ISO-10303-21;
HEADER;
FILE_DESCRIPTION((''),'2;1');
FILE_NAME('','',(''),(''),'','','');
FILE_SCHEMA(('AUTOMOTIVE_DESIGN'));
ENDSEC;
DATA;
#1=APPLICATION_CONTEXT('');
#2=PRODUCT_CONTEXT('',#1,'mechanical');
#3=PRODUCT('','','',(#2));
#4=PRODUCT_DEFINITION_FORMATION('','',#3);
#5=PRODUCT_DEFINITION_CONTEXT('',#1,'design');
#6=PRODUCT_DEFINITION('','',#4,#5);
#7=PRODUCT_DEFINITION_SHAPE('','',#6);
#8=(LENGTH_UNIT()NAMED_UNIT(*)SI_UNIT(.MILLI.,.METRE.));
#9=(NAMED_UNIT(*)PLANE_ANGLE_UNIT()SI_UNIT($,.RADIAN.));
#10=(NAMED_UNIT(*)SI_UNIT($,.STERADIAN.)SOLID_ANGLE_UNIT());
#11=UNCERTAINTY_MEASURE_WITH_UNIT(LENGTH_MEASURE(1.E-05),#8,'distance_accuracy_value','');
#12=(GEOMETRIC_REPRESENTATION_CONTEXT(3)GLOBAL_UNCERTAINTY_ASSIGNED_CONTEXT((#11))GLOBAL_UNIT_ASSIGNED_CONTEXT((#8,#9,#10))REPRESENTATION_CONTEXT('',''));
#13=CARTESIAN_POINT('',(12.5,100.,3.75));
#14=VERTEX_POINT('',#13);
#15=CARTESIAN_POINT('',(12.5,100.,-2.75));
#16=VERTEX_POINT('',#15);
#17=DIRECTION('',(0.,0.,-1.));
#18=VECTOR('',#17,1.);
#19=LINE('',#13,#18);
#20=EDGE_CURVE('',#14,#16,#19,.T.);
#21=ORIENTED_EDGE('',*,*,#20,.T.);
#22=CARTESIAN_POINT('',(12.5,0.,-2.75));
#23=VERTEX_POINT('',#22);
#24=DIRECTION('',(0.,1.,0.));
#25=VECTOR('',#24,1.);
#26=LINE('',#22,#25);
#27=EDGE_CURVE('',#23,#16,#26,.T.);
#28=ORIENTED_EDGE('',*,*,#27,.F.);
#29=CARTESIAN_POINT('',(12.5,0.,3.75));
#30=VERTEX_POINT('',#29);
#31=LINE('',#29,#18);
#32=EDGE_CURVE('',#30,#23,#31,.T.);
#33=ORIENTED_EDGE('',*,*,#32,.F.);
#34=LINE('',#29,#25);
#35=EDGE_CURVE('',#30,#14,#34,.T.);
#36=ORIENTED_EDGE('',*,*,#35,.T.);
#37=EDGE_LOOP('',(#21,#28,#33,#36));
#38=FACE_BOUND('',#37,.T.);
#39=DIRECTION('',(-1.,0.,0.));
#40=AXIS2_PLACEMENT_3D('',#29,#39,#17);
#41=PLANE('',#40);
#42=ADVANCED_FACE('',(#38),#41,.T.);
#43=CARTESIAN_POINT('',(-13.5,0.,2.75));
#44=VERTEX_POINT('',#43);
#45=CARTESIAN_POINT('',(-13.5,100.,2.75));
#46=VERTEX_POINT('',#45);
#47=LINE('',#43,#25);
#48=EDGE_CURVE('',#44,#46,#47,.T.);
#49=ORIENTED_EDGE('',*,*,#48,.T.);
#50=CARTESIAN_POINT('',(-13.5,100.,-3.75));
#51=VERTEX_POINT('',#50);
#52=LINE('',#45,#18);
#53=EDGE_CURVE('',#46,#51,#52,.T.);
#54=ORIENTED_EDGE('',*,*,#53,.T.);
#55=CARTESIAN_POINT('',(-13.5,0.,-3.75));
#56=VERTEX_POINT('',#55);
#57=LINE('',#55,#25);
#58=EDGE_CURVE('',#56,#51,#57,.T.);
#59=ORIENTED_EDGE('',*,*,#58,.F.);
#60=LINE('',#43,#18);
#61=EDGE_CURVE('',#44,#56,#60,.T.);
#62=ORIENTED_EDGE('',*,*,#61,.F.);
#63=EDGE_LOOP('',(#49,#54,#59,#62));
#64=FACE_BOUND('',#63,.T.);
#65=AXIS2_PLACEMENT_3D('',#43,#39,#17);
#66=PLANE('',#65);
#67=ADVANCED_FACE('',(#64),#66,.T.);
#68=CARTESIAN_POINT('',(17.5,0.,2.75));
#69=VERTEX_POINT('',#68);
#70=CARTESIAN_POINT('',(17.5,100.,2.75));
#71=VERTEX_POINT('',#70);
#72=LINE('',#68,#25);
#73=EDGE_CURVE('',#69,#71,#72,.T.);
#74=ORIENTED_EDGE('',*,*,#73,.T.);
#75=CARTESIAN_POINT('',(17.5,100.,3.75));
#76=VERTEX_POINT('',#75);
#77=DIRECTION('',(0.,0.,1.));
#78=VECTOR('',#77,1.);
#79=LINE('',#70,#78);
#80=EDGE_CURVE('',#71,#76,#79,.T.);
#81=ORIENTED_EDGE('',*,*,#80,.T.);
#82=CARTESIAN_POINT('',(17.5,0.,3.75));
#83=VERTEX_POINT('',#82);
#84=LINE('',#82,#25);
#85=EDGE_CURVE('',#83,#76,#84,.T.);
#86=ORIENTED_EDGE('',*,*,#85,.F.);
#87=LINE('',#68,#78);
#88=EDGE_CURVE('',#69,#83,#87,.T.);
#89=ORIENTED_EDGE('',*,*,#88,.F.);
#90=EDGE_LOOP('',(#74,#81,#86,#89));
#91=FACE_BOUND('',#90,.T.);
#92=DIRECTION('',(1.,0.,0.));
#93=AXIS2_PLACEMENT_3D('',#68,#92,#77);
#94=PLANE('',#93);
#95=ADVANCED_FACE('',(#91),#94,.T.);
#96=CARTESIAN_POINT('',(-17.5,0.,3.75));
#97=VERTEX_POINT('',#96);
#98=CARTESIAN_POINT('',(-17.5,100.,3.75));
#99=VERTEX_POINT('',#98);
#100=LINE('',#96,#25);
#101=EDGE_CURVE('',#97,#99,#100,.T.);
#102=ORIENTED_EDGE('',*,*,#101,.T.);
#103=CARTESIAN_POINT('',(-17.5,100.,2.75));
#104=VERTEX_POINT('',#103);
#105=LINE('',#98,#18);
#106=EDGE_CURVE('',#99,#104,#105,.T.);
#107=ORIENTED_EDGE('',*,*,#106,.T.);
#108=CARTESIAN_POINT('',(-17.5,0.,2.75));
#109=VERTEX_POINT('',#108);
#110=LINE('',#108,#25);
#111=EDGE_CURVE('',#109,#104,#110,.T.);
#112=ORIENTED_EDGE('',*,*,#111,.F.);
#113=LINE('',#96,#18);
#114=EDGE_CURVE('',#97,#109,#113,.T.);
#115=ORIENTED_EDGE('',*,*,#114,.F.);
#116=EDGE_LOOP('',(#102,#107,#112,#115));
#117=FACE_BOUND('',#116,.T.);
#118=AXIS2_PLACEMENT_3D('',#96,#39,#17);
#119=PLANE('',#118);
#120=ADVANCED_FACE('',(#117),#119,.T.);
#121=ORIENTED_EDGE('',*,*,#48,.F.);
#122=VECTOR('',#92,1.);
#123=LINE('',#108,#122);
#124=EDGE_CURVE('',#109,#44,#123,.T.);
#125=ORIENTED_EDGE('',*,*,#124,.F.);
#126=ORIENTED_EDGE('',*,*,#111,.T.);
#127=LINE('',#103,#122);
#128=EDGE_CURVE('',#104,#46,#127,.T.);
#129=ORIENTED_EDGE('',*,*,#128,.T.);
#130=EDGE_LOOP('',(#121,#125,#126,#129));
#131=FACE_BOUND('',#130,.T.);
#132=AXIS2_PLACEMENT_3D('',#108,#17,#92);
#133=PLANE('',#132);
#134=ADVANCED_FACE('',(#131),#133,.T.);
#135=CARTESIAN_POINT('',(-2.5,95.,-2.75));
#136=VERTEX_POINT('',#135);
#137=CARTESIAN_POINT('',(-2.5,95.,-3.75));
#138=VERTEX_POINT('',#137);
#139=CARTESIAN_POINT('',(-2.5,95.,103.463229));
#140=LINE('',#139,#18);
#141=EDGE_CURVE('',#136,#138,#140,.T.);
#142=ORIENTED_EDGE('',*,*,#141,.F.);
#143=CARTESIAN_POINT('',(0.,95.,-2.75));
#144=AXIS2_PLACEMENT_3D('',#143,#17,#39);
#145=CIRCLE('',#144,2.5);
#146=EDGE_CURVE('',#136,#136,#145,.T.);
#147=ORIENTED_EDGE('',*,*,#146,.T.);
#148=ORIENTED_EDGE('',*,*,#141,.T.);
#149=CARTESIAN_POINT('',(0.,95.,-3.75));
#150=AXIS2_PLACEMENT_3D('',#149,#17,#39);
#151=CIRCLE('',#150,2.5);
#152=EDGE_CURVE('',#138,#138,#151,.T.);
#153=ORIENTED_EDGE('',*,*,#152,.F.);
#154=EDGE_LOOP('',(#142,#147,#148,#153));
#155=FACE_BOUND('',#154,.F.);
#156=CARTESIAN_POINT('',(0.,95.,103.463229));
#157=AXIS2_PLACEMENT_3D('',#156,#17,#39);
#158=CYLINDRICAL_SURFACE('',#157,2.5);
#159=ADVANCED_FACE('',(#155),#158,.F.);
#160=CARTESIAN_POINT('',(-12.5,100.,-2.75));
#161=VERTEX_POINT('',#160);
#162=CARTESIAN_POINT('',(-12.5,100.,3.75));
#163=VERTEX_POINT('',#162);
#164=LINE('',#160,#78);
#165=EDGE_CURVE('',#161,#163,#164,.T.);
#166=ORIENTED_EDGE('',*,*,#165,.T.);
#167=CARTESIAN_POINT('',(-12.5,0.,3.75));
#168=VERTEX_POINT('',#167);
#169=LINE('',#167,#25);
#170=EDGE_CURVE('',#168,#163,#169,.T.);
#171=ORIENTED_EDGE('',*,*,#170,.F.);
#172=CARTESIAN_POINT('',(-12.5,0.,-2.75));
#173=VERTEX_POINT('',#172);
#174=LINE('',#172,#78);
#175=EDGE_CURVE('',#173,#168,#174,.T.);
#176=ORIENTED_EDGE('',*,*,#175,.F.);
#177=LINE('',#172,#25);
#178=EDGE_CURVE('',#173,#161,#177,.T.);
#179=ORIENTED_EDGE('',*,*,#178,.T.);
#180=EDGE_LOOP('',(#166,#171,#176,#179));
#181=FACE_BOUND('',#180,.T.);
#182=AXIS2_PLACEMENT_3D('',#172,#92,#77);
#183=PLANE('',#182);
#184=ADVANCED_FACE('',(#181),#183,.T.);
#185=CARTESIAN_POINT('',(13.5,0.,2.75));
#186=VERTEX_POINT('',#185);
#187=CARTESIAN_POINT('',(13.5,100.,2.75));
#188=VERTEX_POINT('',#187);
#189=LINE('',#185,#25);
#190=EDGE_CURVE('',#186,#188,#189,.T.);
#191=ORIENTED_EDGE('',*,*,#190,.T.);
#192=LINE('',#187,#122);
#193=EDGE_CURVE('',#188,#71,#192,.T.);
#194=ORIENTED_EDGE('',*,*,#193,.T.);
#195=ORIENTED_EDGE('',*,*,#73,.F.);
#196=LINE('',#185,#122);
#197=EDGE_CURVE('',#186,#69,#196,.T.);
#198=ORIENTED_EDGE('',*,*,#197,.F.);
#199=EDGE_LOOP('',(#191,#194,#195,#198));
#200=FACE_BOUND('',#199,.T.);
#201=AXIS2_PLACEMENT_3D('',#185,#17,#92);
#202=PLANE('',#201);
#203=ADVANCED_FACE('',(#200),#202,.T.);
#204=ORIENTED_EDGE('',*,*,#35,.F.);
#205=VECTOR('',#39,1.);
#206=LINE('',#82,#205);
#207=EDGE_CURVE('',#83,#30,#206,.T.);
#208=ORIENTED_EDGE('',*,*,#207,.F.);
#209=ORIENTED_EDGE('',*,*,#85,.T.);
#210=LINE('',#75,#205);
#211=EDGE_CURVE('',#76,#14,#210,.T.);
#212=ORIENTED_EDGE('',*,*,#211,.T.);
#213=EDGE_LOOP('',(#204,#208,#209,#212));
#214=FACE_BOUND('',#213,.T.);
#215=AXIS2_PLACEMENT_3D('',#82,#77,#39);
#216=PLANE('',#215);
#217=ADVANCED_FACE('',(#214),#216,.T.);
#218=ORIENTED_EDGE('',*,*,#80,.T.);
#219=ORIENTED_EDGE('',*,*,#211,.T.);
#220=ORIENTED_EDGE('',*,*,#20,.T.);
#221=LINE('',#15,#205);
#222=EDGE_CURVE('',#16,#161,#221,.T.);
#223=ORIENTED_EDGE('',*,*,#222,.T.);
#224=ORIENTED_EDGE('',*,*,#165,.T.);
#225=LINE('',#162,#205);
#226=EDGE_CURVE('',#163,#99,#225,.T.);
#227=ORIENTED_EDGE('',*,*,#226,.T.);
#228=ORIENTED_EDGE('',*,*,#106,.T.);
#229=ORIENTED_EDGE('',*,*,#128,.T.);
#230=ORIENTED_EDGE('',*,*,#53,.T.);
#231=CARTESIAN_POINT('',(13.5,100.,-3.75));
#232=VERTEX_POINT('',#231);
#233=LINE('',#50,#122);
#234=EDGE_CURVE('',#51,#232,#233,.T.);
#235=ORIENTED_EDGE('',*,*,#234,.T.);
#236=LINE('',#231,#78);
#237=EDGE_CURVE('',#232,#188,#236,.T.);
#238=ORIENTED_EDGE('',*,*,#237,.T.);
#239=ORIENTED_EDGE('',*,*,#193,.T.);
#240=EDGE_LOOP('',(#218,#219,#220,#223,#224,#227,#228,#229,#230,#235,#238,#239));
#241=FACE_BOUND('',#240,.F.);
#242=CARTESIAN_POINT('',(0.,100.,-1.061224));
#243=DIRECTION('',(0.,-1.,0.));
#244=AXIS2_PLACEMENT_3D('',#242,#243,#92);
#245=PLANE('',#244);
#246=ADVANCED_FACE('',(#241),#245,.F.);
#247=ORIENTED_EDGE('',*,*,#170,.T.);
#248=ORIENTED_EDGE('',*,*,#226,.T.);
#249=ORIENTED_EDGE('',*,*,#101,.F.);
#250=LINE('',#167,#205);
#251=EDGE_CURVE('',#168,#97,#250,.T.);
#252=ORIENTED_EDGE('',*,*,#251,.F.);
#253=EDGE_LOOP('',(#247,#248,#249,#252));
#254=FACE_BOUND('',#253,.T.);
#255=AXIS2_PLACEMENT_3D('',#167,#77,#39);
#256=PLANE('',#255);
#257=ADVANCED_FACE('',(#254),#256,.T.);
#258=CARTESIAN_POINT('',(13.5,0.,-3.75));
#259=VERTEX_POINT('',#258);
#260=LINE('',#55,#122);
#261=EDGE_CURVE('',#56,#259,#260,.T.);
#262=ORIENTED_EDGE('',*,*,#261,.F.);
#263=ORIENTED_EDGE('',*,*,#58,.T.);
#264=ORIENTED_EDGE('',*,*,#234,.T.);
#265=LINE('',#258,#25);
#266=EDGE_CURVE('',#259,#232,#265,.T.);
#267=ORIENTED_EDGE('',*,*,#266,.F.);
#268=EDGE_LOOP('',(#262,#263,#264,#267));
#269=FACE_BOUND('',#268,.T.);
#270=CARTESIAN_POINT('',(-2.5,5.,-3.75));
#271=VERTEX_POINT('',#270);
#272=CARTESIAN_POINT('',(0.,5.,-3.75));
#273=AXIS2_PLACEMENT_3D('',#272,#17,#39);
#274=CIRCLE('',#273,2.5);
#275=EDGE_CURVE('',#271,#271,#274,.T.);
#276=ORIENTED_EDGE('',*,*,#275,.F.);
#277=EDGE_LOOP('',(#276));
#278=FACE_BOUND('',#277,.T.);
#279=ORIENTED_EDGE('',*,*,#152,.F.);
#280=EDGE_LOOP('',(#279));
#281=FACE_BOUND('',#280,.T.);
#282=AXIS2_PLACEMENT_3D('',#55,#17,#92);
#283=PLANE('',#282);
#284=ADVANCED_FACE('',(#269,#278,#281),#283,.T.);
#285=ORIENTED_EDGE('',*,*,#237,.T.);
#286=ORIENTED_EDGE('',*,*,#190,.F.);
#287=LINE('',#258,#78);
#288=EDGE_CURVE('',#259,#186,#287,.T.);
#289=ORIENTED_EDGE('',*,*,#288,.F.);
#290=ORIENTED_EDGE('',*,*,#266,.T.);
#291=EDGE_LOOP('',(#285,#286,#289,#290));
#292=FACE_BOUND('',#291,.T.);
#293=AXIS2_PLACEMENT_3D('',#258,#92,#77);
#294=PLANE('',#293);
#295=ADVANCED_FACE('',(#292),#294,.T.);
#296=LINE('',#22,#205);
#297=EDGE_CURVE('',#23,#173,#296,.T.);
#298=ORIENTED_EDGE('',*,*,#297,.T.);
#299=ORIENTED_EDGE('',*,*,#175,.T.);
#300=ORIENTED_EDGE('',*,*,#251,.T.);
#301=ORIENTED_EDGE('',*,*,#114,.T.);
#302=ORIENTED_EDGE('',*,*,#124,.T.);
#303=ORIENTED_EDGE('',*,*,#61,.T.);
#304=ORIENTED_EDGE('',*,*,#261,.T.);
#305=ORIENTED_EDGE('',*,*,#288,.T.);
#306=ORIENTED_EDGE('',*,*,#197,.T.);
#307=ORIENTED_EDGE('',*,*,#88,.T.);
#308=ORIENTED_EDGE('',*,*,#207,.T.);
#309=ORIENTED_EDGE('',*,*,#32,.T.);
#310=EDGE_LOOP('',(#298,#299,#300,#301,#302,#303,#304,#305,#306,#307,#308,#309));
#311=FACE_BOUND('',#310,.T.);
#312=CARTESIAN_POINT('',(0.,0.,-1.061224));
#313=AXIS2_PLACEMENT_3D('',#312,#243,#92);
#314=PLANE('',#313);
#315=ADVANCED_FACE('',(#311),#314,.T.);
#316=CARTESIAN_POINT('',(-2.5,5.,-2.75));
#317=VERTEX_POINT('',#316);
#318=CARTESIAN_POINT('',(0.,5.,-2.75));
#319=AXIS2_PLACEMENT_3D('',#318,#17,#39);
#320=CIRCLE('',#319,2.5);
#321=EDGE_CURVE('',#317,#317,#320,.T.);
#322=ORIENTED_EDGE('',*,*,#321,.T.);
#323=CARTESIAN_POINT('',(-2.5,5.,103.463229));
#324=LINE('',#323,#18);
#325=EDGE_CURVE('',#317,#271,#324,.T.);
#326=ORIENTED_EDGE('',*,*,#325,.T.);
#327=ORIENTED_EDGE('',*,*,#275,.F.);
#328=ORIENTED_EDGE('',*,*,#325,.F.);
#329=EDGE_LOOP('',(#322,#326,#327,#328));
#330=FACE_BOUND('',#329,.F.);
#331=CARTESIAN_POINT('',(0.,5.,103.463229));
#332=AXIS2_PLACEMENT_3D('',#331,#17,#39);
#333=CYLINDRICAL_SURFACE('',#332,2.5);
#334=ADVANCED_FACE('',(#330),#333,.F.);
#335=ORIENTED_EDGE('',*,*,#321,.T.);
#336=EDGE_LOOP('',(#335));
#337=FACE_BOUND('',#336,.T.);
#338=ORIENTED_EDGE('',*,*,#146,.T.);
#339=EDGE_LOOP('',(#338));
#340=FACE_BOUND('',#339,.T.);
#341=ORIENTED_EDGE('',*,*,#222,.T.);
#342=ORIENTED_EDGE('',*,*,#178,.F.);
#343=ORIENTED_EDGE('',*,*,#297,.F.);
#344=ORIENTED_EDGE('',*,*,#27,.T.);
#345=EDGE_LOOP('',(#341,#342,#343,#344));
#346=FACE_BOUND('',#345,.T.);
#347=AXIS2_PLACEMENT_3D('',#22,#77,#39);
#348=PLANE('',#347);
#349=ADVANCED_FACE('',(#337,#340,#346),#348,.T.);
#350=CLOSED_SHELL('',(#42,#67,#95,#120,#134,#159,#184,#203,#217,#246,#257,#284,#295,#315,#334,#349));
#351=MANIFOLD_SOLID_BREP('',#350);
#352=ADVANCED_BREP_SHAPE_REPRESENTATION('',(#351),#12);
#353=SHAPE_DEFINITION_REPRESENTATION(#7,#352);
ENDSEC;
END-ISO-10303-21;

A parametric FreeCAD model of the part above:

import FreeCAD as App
import Part
import Sketcher
from FreeCAD import Vector
Q = App.Units.Quantity

doc = App.newDocument("Part")
body = doc.addObject("PartDesign::Body", "Body")

# Sketch on XZ plane
sketch1 = body.newObject("Sketcher::SketchObject", "Sketch")
sketch1.AttachmentSupport = (doc.getObject("XZ_Plane"), [""])
sketch1.MapMode = "FlatFace"
sketch1.addGeometry([
    Part.LineSegment(Vector(-12.5, 3.8, 0), Vector(-17.5, 3.8, 0)),  # 0
    Part.LineSegment(Vector(-17.5, 3.8, 0), Vector(-17.5, 2.8, 0)),  # 1
    Part.LineSegment(Vector(-17.5, 2.8, 0), Vector(-13.5, 2.8, 0)),  # 2
    Part.LineSegment(Vector(-13.5, 2.8, 0), Vector(-13.5, -3.8, 0)),  # 3
    Part.LineSegment(Vector(-13.5, -3.8, 0), Vector(13.5, -3.8, 0)),  # 4
    Part.LineSegment(Vector(13.5, -3.8, 0), Vector(13.5, 2.8, 0)),  # 5
    Part.LineSegment(Vector(13.5, 2.8, 0), Vector(17.5, 2.8, 0)),  # 6
    Part.LineSegment(Vector(17.5, 2.8, 0), Vector(17.5, 3.8, 0)),  # 7
    Part.LineSegment(Vector(17.5, 3.8, 0), Vector(12.5, 3.8, 0)),  # 8
    Part.LineSegment(Vector(12.5, 3.8, 0), Vector(12.5, -2.8, 0)),  # 9
    Part.LineSegment(Vector(12.5, -2.8, 0), Vector(-12.5, -2.8, 0)),  # 10
    Part.LineSegment(Vector(-12.5, -2.8, 0), Vector(-12.5, 3.8, 0)),  # 11
], False)
sketch1.addConstraint([
    Sketcher.Constraint("Coincident", 0, 2, 1, 1),
    Sketcher.Constraint("Coincident", 1, 2, 2, 1),
    Sketcher.Constraint("Coincident", 2, 2, 3, 1),
    Sketcher.Constraint("Coincident", 3, 2, 4, 1),
    Sketcher.Constraint("Coincident", 4, 2, 5, 1),
    Sketcher.Constraint("Coincident", 5, 2, 6, 1),
    Sketcher.Constraint("Coincident", 6, 2, 7, 1),
    Sketcher.Constraint("Coincident", 7, 2, 8, 1),
    Sketcher.Constraint("Coincident", 8, 2, 9, 1),
    Sketcher.Constraint("Coincident", 9, 2, 10, 1),
    Sketcher.Constraint("Coincident", 10, 2, 11, 1),
    Sketcher.Constraint("Coincident", 11, 2, 0, 1),
    Sketcher.Constraint("Horizontal", 0),
    Sketcher.Constraint("Vertical", 1),
    Sketcher.Constraint("Horizontal", 2),
    Sketcher.Constraint("Vertical", 3),
    Sketcher.Constraint("Horizontal", 4),
    Sketcher.Constraint("Vertical", 5),
    Sketcher.Constraint("Horizontal", 6),
    Sketcher.Constraint("Vertical", 7),
    Sketcher.Constraint("Horizontal", 8),
    Sketcher.Constraint("Vertical", 9),
    Sketcher.Constraint("Horizontal", 10),
    Sketcher.Constraint("Vertical", 11),
    Sketcher.Constraint("Symmetric", 2, 2, 5, 2, -2),
    Sketcher.Constraint("Symmetric", 0, 2, 7, 2, -2),
    Sketcher.Constraint("Equal", 0, 8),
    Sketcher.Constraint("Equal", 5, 9),
    Sketcher.Constraint("DistanceX", 0, 2, 0, 1, Q("5 mm")),
    Sketcher.Constraint("DistanceX", 2, 1, 2, 2, Q("4 mm")),
    Sketcher.Constraint("DistanceX", 4, 1, 4, 2, Q("27 mm")),
    Sketcher.Constraint("DistanceY", 1, 2, 1, 1, Q("1 mm")),
    Sketcher.Constraint("DistanceY", 3, 2, 3, 1, Q("6.5 mm")),
    Sketcher.Constraint("DistanceY", -1, 1, 0, 2, Q("3.75 mm")),
])
pad1 = body.newObject("PartDesign::Pad", "Pad")
pad1.Profile = sketch1
pad1.Length = 100
pad1.Reversed = True

# Sketch on XY plane
sketch2 = body.newObject("Sketcher::SketchObject", "Sketch001")
sketch2.AttachmentSupport = (doc.getObject("XY_Plane"), [""])
sketch2.MapMode = "FlatFace"
sketch2.AttachmentOffset = App.Placement(Vector(0, 0, -2.75), App.Rotation())
sketch2.addGeometry([
    Part.Circle(Vector(0, 95, 0), Vector(0, 0, 1), 2.5),
    Part.Circle(Vector(0, 5, 0), Vector(0, 0, 1), 2.5),
], False)
sketch2.addConstraint([
    Sketcher.Constraint("Equal", 0, 1),
    Sketcher.Constraint("PointOnObject", 0, 3, -2),
    Sketcher.Constraint("PointOnObject", 1, 3, -2),
    Sketcher.Constraint("Diameter", 0, Q("5 mm")),
    Sketcher.Constraint("DistanceY", -1, 1, 0, 3, Q("95 mm")),
    Sketcher.Constraint("DistanceY", -1, 1, 1, 3, Q("5 mm")),
])
doc.recompute()
hole = body.newObject("PartDesign::Hole", "Hole")
hole.Profile = sketch2
hole.ThreadType = "None"
hole.Diameter = 5
hole.DepthType = "ThroughAll"

doc.recompute()
